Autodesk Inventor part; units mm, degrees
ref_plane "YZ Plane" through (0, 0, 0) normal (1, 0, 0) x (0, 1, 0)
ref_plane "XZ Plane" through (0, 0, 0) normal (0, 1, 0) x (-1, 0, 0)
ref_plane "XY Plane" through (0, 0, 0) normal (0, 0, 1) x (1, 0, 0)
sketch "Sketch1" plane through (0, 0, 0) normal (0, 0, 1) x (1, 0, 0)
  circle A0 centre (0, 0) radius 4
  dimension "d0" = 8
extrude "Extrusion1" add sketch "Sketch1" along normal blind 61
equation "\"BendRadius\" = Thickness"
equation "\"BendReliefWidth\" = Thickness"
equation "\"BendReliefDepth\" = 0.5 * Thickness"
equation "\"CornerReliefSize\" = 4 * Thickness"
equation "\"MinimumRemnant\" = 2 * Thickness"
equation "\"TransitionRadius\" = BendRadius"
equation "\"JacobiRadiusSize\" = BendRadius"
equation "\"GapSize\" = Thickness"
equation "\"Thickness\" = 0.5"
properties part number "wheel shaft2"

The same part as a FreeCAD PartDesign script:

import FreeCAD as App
import Part
import Sketcher

V = App.Vector

doc = App.newDocument("Part")
body = doc.addObject("PartDesign::Body", "Body")

sketch1 = body.newObject("Sketcher::SketchObject", "Sketch")
sketch1.AttachmentSupport = (doc.getObject("XY_Plane"), [""])
sketch1.MapMode = "FlatFace"
sketch1.addGeometry(Part.Circle(V(0, 0, 0), V(0, 0, 1), 4), False)
sketch1.addConstraint(Sketcher.Constraint("Coincident", 0, 3, -1, 1))
sketch1.addConstraint(Sketcher.Constraint("Diameter", 0, 8.0))
pad1 = body.newObject("PartDesign::Pad", "Pad")
pad1.Profile = sketch1
pad1.Length = 61

doc.recompute()
